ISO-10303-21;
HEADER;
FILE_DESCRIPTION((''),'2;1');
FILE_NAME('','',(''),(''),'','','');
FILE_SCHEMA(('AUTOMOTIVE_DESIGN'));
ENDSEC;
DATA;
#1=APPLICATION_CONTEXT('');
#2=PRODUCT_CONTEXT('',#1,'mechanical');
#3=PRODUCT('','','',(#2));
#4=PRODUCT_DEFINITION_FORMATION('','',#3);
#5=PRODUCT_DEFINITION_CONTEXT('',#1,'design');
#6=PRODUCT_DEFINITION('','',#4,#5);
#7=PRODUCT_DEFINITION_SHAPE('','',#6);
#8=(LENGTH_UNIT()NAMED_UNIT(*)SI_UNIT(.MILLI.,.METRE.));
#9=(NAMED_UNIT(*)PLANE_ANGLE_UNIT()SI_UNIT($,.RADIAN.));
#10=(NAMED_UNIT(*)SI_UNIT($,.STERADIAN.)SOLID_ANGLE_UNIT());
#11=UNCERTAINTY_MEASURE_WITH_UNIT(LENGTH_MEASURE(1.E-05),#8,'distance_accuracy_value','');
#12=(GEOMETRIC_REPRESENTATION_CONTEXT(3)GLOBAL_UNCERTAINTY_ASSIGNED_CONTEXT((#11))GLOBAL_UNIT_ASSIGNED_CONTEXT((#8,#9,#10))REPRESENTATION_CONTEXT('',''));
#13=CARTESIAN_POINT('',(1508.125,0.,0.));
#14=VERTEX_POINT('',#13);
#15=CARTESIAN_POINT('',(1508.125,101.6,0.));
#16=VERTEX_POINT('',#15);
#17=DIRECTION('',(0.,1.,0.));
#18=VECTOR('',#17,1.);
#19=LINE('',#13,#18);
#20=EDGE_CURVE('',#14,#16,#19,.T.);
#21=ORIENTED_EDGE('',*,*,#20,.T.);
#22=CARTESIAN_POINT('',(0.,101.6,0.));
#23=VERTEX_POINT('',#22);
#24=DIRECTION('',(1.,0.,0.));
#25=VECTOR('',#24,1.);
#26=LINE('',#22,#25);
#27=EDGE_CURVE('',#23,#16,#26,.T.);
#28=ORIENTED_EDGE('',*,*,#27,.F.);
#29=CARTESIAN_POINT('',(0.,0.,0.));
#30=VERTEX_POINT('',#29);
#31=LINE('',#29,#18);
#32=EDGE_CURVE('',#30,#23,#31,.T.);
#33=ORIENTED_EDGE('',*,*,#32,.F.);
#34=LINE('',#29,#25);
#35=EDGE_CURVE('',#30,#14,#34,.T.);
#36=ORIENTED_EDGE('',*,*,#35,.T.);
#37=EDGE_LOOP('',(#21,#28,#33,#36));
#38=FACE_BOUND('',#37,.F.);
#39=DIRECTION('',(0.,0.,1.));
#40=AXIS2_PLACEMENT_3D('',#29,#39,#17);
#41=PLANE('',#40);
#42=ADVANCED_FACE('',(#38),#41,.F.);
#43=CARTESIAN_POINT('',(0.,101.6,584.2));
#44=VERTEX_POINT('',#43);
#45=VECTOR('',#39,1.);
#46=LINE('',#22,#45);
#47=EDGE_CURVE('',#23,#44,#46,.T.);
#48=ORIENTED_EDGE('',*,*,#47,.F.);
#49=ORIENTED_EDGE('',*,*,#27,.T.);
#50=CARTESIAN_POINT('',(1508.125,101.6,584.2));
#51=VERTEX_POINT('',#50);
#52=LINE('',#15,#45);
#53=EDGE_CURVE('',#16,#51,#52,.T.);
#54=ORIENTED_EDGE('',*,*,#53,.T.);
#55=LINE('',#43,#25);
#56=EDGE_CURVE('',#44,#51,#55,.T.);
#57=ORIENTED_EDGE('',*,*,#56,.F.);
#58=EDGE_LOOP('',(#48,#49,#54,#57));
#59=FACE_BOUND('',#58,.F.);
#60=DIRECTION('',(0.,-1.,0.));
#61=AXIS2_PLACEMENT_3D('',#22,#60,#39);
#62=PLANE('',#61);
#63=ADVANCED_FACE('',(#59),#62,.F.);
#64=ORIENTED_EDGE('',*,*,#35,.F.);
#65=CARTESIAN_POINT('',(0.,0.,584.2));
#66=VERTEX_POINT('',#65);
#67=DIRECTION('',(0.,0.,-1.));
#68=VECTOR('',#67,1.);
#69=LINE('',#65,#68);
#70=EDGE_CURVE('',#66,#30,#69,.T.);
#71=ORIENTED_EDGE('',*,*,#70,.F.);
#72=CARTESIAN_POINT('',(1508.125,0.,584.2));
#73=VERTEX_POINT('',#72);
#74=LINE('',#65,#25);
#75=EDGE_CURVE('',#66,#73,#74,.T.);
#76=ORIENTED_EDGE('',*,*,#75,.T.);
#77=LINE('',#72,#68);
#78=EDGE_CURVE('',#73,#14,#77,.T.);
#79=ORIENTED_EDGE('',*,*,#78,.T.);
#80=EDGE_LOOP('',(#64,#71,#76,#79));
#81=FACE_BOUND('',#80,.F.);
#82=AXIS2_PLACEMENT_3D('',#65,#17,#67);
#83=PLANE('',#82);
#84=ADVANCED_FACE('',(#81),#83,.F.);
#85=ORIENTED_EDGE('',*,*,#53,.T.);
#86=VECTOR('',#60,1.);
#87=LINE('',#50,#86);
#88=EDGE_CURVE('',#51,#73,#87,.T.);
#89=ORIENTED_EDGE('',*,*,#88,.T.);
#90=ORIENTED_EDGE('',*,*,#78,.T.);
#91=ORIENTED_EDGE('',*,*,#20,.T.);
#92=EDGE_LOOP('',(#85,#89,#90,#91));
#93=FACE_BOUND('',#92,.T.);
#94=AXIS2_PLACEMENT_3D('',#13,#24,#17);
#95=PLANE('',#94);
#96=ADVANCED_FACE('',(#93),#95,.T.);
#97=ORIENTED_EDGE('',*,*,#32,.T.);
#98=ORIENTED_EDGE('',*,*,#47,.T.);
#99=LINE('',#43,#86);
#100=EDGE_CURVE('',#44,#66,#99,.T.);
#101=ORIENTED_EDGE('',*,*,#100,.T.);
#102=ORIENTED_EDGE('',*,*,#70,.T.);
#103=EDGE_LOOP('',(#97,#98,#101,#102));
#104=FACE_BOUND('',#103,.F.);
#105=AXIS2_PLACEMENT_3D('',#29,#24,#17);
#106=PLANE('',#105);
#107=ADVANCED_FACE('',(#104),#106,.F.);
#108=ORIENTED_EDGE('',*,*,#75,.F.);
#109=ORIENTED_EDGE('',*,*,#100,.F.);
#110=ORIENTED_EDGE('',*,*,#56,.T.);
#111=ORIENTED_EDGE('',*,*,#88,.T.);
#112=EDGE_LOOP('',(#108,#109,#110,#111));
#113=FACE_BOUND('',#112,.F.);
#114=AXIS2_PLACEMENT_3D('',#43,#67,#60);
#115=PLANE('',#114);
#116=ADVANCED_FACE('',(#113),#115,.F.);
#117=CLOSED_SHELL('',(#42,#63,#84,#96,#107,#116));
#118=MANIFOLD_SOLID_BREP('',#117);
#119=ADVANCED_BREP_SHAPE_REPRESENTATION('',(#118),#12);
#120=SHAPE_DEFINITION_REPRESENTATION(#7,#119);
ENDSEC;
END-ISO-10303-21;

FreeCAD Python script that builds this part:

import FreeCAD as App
import Part
import Sketcher

V = App.Vector
Q = App.Units.Quantity


def add_polygon(sketch, points):
    """Adds a closed chain of lines whose ends are joined by coincident constraints."""
    first, n = sketch.GeometryCount, len(points)
    for a, b in zip(points, points[1:] + points[:1]):
        sketch.addGeometry(Part.LineSegment(App.Vector(*a, 0), App.Vector(*b, 0)), False)
    for i in range(n):
        sketch.addConstraint(Sketcher.Constraint("Coincident", first + i, 2, first + (i + 1) % n, 1))

doc = App.newDocument("Part")
body = doc.addObject("PartDesign::Body", "Body")

# Sketch on YZ plane
sketch1 = body.newObject("Sketcher::SketchObject", "Sketch")
sketch1.AttachmentSupport = (doc.getObject("YZ_Plane"), [""])
sketch1.MapMode = "FlatFace"
add_polygon(sketch1, [(0, 584.2), (0, 0), (101.6, 0), (101.6, 584.2)])  # lines 0-3
sketch1.addConstraint([
    Sketcher.Constraint("Vertical", 0),
    Sketcher.Constraint("Horizontal", 1),
    Sketcher.Constraint("Vertical", 2),
    Sketcher.Constraint("Horizontal", 3),
    Sketcher.Constraint("Coincident", 0, 2, -1, 1),
    Sketcher.Constraint("DistanceX", 1, 1, 1, 2, Q("4 in")),
    Sketcher.Constraint("DistanceY", 0, 2, 0, 1, Q("23 in")),
])
pad1 = body.newObject("PartDesign::Pad", "Pad")
pad1.Profile = sketch1
pad1.Length = Q("59.375 in")

doc.recompute()
